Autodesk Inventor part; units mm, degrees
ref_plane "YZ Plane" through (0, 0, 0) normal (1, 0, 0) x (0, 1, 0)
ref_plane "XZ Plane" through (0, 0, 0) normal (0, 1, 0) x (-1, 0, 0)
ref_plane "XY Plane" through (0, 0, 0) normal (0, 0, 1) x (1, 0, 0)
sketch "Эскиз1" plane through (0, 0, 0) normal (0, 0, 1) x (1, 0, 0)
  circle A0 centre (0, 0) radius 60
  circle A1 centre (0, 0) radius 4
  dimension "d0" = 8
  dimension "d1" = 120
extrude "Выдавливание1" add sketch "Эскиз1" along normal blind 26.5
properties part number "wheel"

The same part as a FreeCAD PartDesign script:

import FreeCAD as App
import Part
import Sketcher
from FreeCAD import Vector

doc = App.newDocument("Part")
params = doc.addObject("Spreadsheet::Sheet", "Params")
for row, (alias, value) in enumerate([
    ("sketch1_diameter", "120 mm"),
    ("sketch1_diameter2", "8 mm"),
    ("pad1_length", "26.5 mm"),
], start=1):
    params.set(f"A{row}", alias)
    params.set(f"B{row}", "=" + value)
    params.setAlias(f"B{row}", alias)

body = doc.addObject("PartDesign::Body", "Body")

sketch1 = body.newObject("Sketcher::SketchObject", "Sketch")
sketch1.AttachmentSupport = (doc.getObject("XY_Plane"), [""])
sketch1.MapMode = "FlatFace"
sketch1.addGeometry([
    Part.Circle(Vector(0, 0, 0), Vector(0, 0, 1), 60),
    Part.Circle(Vector(0, 0, 0), Vector(0, 0, 1), 4),
], False)
sketch1.addConstraint([
    Sketcher.Constraint("Coincident", 0, 3, -1, 1),
    Sketcher.Constraint("Coincident", 1, 3, -1, 1),
    Sketcher.Constraint("Diameter", 0, 120.0),
    Sketcher.Constraint("Diameter", 1, 8.0),
])
sketch1.setExpression("Constraints[2]", "Params.sketch1_diameter")
sketch1.setExpression("Constraints[3]", "Params.sketch1_diameter2")
pad1 = body.newObject("PartDesign::Pad", "Pad")
pad1.Profile = sketch1
pad1.setExpression("Length", "Params.pad1_length")

doc.recompute()
